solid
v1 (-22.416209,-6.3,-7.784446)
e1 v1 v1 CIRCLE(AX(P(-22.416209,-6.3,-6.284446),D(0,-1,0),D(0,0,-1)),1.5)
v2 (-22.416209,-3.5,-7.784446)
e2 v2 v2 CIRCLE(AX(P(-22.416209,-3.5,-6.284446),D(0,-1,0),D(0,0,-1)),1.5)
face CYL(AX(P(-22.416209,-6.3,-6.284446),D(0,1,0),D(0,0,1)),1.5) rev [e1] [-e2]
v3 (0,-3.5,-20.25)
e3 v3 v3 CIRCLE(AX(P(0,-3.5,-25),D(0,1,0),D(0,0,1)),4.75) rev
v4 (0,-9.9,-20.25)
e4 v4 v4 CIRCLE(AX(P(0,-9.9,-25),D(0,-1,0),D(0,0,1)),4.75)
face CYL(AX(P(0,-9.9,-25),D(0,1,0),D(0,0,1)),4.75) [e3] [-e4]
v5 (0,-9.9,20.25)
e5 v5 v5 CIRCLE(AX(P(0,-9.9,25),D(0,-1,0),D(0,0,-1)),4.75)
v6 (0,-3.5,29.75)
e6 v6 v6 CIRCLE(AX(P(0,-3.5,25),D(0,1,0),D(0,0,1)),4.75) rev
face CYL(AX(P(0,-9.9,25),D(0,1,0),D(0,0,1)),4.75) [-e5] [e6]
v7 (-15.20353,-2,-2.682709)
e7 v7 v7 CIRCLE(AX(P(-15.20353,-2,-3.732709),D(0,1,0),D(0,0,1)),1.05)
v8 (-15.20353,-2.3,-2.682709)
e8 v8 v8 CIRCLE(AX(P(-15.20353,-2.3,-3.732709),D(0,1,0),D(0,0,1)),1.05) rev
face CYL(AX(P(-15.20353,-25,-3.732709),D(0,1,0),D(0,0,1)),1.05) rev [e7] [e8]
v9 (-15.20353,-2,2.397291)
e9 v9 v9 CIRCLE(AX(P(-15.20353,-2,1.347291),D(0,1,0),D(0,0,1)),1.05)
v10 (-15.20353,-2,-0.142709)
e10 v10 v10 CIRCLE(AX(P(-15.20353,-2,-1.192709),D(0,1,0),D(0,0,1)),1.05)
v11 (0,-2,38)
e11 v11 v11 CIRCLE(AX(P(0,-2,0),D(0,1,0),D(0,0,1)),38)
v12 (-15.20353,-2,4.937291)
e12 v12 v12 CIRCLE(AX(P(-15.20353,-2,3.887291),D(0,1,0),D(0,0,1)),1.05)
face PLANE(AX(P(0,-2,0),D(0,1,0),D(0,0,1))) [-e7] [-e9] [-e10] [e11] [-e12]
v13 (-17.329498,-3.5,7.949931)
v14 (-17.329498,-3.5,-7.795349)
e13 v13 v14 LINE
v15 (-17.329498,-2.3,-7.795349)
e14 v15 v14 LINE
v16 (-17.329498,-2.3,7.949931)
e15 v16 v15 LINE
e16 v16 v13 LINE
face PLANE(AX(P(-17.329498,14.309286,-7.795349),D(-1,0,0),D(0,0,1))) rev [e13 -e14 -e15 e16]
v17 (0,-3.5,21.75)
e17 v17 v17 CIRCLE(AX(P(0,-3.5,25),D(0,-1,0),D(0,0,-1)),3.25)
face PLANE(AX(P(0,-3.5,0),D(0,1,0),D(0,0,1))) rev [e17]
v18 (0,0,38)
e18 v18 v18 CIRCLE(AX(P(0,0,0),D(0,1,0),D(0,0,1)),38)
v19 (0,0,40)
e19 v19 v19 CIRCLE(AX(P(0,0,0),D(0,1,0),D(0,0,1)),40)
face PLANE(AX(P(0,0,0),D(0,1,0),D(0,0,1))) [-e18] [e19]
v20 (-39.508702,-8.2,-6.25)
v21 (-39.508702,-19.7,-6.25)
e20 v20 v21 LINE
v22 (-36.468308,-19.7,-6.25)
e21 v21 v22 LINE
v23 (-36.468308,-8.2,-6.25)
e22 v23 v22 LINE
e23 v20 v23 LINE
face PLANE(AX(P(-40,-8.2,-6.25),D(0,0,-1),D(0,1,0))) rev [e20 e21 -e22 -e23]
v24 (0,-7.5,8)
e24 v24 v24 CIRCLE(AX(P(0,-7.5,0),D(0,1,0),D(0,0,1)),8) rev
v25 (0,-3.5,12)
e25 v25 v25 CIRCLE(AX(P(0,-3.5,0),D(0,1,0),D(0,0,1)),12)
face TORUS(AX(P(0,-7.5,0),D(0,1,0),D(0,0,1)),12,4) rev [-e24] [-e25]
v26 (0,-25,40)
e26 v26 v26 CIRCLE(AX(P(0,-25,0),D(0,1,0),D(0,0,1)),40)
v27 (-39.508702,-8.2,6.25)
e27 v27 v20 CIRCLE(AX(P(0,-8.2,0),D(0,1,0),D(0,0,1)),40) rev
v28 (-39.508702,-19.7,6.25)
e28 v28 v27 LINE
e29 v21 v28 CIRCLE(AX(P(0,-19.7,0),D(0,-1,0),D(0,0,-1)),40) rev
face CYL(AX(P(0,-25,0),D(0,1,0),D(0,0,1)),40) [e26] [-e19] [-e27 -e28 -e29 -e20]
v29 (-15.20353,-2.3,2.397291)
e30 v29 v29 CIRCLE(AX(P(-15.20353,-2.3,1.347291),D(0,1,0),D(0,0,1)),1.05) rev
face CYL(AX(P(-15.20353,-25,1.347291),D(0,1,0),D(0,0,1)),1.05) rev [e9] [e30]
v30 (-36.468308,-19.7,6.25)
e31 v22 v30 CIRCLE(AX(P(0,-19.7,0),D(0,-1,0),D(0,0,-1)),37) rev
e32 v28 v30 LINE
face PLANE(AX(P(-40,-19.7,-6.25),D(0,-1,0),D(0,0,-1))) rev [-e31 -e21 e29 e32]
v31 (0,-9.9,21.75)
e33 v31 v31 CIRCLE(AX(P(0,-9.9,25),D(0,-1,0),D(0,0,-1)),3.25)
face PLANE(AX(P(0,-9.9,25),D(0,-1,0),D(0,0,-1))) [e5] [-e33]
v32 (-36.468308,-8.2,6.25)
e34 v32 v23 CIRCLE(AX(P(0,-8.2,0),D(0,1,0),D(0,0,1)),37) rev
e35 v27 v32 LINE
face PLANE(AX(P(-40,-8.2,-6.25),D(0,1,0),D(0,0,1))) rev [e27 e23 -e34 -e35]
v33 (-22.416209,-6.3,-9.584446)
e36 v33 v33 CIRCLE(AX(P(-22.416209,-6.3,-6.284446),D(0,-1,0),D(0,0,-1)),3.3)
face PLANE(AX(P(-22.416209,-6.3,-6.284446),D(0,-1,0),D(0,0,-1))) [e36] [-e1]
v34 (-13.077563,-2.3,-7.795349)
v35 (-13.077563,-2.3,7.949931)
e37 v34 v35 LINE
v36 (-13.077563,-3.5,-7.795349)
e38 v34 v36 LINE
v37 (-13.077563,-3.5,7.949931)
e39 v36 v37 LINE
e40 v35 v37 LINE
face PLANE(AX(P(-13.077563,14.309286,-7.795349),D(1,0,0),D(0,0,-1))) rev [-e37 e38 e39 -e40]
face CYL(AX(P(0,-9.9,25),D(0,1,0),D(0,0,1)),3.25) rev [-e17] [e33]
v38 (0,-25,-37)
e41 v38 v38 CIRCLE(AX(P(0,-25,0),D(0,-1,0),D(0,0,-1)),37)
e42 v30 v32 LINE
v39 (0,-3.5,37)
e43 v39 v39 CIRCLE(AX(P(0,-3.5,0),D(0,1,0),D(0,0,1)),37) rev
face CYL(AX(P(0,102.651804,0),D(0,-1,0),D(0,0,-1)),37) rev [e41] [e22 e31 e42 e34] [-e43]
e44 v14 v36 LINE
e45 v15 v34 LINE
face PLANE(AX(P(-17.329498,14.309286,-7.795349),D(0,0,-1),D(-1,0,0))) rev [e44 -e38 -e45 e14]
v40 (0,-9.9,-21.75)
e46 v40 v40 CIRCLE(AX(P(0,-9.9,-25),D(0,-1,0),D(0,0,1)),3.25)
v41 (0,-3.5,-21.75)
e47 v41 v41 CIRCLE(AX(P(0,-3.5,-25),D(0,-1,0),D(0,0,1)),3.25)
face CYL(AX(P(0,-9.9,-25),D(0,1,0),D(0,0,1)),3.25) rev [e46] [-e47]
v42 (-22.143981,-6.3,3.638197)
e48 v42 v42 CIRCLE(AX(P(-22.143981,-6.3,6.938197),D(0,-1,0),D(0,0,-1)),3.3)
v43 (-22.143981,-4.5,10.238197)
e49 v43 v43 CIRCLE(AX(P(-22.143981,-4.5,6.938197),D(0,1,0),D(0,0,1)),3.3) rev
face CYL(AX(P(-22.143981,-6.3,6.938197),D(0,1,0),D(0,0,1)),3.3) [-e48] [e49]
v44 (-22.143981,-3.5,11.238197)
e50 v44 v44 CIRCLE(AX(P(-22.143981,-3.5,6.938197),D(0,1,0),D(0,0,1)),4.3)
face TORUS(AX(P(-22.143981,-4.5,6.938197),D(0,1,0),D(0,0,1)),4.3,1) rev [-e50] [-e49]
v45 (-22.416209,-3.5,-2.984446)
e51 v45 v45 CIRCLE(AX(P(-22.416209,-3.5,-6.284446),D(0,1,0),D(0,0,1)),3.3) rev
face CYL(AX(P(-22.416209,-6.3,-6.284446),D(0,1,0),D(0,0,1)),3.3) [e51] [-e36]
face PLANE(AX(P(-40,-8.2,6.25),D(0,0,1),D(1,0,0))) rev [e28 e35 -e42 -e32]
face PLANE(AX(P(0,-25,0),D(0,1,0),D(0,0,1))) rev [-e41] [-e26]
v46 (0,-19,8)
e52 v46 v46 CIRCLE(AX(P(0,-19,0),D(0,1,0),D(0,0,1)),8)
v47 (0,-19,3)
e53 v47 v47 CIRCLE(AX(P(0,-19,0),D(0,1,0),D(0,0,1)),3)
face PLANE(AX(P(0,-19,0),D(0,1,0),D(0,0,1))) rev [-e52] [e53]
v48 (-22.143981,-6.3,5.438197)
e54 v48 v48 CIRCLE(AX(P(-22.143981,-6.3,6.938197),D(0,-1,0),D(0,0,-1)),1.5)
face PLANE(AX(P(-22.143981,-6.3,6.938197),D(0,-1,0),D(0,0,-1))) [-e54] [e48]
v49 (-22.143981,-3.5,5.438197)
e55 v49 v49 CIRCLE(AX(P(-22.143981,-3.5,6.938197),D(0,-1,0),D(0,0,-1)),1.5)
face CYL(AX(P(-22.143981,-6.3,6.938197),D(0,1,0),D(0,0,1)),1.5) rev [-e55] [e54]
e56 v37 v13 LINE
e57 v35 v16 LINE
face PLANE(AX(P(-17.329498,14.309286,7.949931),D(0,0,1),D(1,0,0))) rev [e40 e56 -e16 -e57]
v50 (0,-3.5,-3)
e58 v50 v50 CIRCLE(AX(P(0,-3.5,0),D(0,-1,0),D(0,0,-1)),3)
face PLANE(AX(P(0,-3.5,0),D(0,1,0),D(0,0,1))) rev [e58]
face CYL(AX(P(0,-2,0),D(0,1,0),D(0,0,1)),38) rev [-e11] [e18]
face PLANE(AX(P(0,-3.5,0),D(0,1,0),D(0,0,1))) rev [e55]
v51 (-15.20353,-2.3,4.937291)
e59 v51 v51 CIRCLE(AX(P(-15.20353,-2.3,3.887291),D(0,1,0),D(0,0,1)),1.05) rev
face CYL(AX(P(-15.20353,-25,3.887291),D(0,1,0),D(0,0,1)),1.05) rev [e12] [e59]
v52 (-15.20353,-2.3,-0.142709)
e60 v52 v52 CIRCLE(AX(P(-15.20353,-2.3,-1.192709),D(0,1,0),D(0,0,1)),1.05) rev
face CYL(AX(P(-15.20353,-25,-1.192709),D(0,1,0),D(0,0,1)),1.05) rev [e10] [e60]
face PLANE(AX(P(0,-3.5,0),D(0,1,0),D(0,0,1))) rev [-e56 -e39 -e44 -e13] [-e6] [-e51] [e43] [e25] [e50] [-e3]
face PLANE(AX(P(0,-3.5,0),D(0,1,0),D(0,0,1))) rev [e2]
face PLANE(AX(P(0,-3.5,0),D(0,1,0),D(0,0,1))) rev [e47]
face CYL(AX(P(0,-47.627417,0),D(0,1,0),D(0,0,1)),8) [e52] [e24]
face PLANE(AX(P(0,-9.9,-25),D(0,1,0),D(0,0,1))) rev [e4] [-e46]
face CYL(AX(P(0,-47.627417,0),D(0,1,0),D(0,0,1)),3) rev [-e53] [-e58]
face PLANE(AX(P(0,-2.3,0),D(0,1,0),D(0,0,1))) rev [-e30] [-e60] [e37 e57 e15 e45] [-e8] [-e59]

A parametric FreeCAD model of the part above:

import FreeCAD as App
import Part
import Sketcher

V = App.Vector
Q = App.Units.Quantity


def edges_at(feature, points):
    """Names of the edges that pass closest to the given points."""
    edges = feature.Shape.Edges
    near = lambda p: min(range(len(edges)), key=lambda i: edges[i].distToShape(Part.Vertex(*p))[0])
    return sorted({f"Edge{near(p) + 1}" for p in points})

doc = App.newDocument("Part")
body = doc.addObject("PartDesign::Body", "Body")

# Sketch on XZ plane
sketch1 = doc.addObject("Sketcher::SketchObject", "Sketch")
body.addObject(sketch1)
sketch1.AttachmentSupport = (doc.XZ_Plane, [""])
sketch1.MapMode = "FlatFace"
sketch1.addGeometry(Part.Circle(V(0, 0, 0), V(0, 0, 1), 40), False)
sketch1.addConstraint(Sketcher.Constraint("Coincident", 0, 3, -1, 1))
sketch1.addConstraint(Sketcher.Constraint("Diameter", 0, Q("80 mm")))
pad1 = doc.addObject("PartDesign::Pad", "Pad")
body.addObject(pad1)
pad1.Profile = sketch1
pad1.Length = 25

# Sketch on XZ plane
sketch2 = doc.addObject("Sketcher::SketchObject", "Sketch001")
body.addObject(sketch2)
sketch2.AttachmentSupport = (doc.XZ_Plane, [""])
sketch2.MapMode = "FlatFace"
sketch2.addGeometry(Part.Circle(V(0, 0, 0), V(0, 0, 1), 38), False)
sketch2.addConstraint(Sketcher.Constraint("Coincident", 0, 3, -1, 1))
sketch2.addConstraint(Sketcher.Constraint("Diameter", 0, Q("76 mm")))
pocket1 = doc.addObject("PartDesign::Pocket", "Pocket")
body.addObject(pocket1)
pocket1.Profile = sketch2
pocket1.Length = 2
pocket1.Reversed = True

# Sketch on XZ plane
sketch3 = doc.addObject("Sketcher::SketchObject", "Sketch002")
body.addObject(sketch3)
sketch3.AttachmentSupport = (doc.XZ_Plane, [""])
sketch3.MapMode = "FlatFace"
sketch3.AttachmentOffset = App.Placement(V(0, 0, 25), App.Rotation())
sketch3.addGeometry(Part.Circle(V(0, 0, 0), V(0, 0, 1), 37), False)
sketch3.addConstraint(Sketcher.Constraint("Coincident", 0, 3, -1, 1))
sketch3.addConstraint(Sketcher.Constraint("Diameter", 0, Q("74 mm")))
pocket2 = doc.addObject("PartDesign::Pocket", "Pocket001")
body.addObject(pocket2)
pocket2.Profile = sketch3
pocket2.Length = 21.5

# Sketch on YZ plane
sketch4 = doc.addObject("Sketcher::SketchObject", "Sketch003")
body.addObject(sketch4)
sketch4.AttachmentSupport = (doc.YZ_Plane, [""])
sketch4.MapMode = "FlatFace"
sketch4.addGeometry(Part.LineSegment(V(-8, 6, 0), V(-20, 6, 0)), False)
sketch4.addGeometry(Part.LineSegment(V(-20, 6, 0), V(-20, -6, 0)), False)
sketch4.addGeometry(Part.LineSegment(V(-20, -6, 0), V(-8, -6, 0)), False)
sketch4.addGeometry(Part.LineSegment(V(-8, -6, 0), V(-8, 6, 0)), False)
sketch4.addConstraint(Sketcher.Constraint("Coincident", 0, 2, 1, 1))
sketch4.addConstraint(Sketcher.Constraint("Coincident", 1, 2, 2, 1))
sketch4.addConstraint(Sketcher.Constraint("Coincident", 2, 2, 3, 1))
sketch4.addConstraint(Sketcher.Constraint("Coincident", 3, 2, 0, 1))
sketch4.addConstraint(Sketcher.Constraint("Horizontal", 0))
sketch4.addConstraint(Sketcher.Constraint("Vertical", 1))
sketch4.addConstraint(Sketcher.Constraint("Horizontal", 2))
sketch4.addConstraint(Sketcher.Constraint("Vertical", 3))
sketch4.addConstraint(Sketcher.Constraint("DistanceX", 0, 2, 0, 1, Q("11.5 mm")))
sketch4.addConstraint(Sketcher.Constraint("DistanceY", 1, 2, 1, 1, Q("12.5 mm")))
sketch4.addConstraint(Sketcher.Constraint("DistanceX", 0, 2, -1, 1, Q("19.7 mm")))
sketch4.addConstraint(Sketcher.Constraint("DistanceY", -1, 1, 0, 2, Q("6.25 mm")))
pocket3 = doc.addObject("PartDesign::Pocket", "Pocket002")
body.addObject(pocket3)
pocket3.Profile = sketch4
pocket3.Type = "ThroughAll"

# Sketch on XZ plane
sketch5 = doc.addObject("Sketcher::SketchObject", "Sketch004")
body.addObject(sketch5)
sketch5.AttachmentSupport = (doc.XZ_Plane, [""])
sketch5.MapMode = "FlatFace"
sketch5.AttachmentOffset = App.Placement(V(0, 0, 2), App.Rotation())
sketch5.addGeometry(Part.Circle(V(-15.2, -3.7, 0), V(0, 0, 1), 1.1), False)
sketch5.addGeometry(Part.Circle(V(-15.2, -1.2, 0), V(0, 0, 1), 1.1), False)
sketch5.addGeometry(Part.Circle(V(-15.2, 1.3, 0), V(0, 0, 1), 1.1), False)
sketch5.addGeometry(Part.Circle(V(-15.2, 3.9, 0), V(0, 0, 1), 1.1), False)
sketch5.addConstraint(Sketcher.Constraint("Equal", 0, 1))
sketch5.addConstraint(Sketcher.Constraint("Equal", 1, 2))
sketch5.addConstraint(Sketcher.Constraint("Equal", 2, 3))
sketch5.addConstraint(Sketcher.Constraint("Vertical", 0, 3, 1, 3))
sketch5.addConstraint(Sketcher.Constraint("Vertical", 1, 3, 2, 3))
sketch5.addConstraint(Sketcher.Constraint("Vertical", 2, 3, 3, 3))
sketch5.addConstraint(Sketcher.Constraint("Diameter", 0, Q("2.1 mm")))
sketch5.addConstraint(Sketcher.Constraint("DistanceY", 0, 3, 1, 3, Q("2.54 mm")))
sketch5.addConstraint(Sketcher.Constraint("DistanceY", 1, 3, 2, 3, Q("2.54 mm")))
sketch5.addConstraint(Sketcher.Constraint("DistanceY", 2, 3, 3, 3, Q("2.54 mm")))
sketch5.addConstraint(Sketcher.Constraint("DistanceX", 0, 3, -1, 1, Q("15.20353 mm")))
sketch5.addConstraint(Sketcher.Constraint("DistanceY", 0, 3, -1, 1, Q("3.732709 mm")))
pocket4 = doc.addObject("PartDesign::Pocket", "Pocket003")
body.addObject(pocket4)
pocket4.Profile = sketch5
pocket4.Type = "ThroughAll"
pocket4.Reversed = True

# Sketch on XZ plane
sketch6 = doc.addObject("Sketcher::SketchObject", "Sketch005")
body.addObject(sketch6)
sketch6.AttachmentSupport = (doc.XZ_Plane, [""])
sketch6.MapMode = "FlatFace"
sketch6.AttachmentOffset = App.Placement(V(0, 0, 3.5), App.Rotation())
sketch6.addGeometry(Part.LineSegment(V(-17.3, 7.9, 0), V(-17.3, -7.8, 0)), False)
sketch6.addGeometry(Part.LineSegment(V(-17.3, -7.8, 0), V(-13.1, -7.8, 0)), False)
sketch6.addGeometry(Part.LineSegment(V(-13.1, -7.8, 0), V(-13.1, 7.9, 0)), False)
sketch6.addGeometry(Part.LineSegment(V(-13.1, 7.9, 0), V(-17.3, 7.9, 0)), False)
sketch6.addConstraint(Sketcher.Constraint("Coincident", 0, 2, 1, 1))
sketch6.addConstraint(Sketcher.Constraint("Coincident", 1, 2, 2, 1))
sketch6.addConstraint(Sketcher.Constraint("Coincident", 2, 2, 3, 1))
sketch6.addConstraint(Sketcher.Constraint("Coincident", 3, 2, 0, 1))
sketch6.addConstraint(Sketcher.Constraint("Vertical", 0))
sketch6.addConstraint(Sketcher.Constraint("Horizontal", 1))
sketch6.addConstraint(Sketcher.Constraint("Vertical", 2))
sketch6.addConstraint(Sketcher.Constraint("Horizontal", 3))
sketch6.addConstraint(Sketcher.Constraint("DistanceY", 0, 2, 0, 1, Q("15.74528 mm")))
sketch6.addConstraint(Sketcher.Constraint("DistanceX", 1, 1, 1, 2, Q("4.251935 mm")))
sketch6.addConstraint(Sketcher.Constraint("DistanceY", 0, 2, -1, 1, Q("7.795349 mm")))
sketch6.addConstraint(Sketcher.Constraint("DistanceX", 0, 2, -1, 1, Q("17.329498 mm")))
pocket5 = doc.addObject("PartDesign::Pocket", "Pocket004")
body.addObject(pocket5)
pocket5.Profile = sketch6
pocket5.Length = 1.2

# Sketch on XZ plane
sketch7 = doc.addObject("Sketcher::SketchObject", "Sketch006")
body.addObject(sketch7)
sketch7.AttachmentSupport = (doc.XZ_Plane, [""])
sketch7.MapMode = "FlatFace"
sketch7.AttachmentOffset = App.Placement(V(0, 0, 3.5), App.Rotation())
sketch7.addGeometry(Part.Circle(V(-22.1, 6.9, 0), V(0, 0, 1), 3.3), False)
sketch7.addGeometry(Part.Circle(V(-22.1, 6.9, 0), V(0, 0, 1), 1.5), False)
sketch7.addGeometry(Part.Circle(V(-22.4, -6.3, 0), V(0, 0, 1), 3.3), False)
sketch7.addGeometry(Part.Circle(V(-22.4, -6.3, 0), V(0, 0, 1), 1.5), False)
sketch7.addConstraint(Sketcher.Constraint("Coincident", 1, 3, 0, 3))
sketch7.addConstraint(Sketcher.Constraint("Coincident", 3, 3, 2, 3))
sketch7.addConstraint(Sketcher.Constraint("Equal", 0, 2))
sketch7.addConstraint(Sketcher.Constraint("Equal", 1, 3))
sketch7.addConstraint(Sketcher.Constraint("Diameter", 1, Q("3 mm")))
sketch7.addConstraint(Sketcher.Constraint("Diameter", 0, Q("6.6 mm")))
sketch7.addConstraint(Sketcher.Constraint("DistanceX", 0, 3, -1, 1, Q("22.143981 mm")))
sketch7.addConstraint(Sketcher.Constraint("DistanceX", 2, 3, -1, 1, Q("22.416209 mm")))
sketch7.addConstraint(Sketcher.Constraint("DistanceY", -1, 1, 0, 3, Q("6.938197 mm")))
sketch7.addConstraint(Sketcher.Constraint("DistanceY", 2, 3, -1, 1, Q("6.284446 mm")))
pad2 = doc.addObject("PartDesign::Pad", "Pad001")
body.addObject(pad2)
pad2.Profile = sketch7
pad2.Length = 2.8
doc.recompute()

fillet = doc.addObject("PartDesign::Fillet", "Fillet")
body.addObject(fillet)
fillet.Base = (pad2, edges_at(pad2, [(-22.144, -3.5, 3.638)]))
fillet.Radius = 1

# Sketch on XZ plane
sketch8 = doc.addObject("Sketcher::SketchObject", "Sketch007")
body.addObject(sketch8)
sketch8.AttachmentSupport = (doc.XZ_Plane, [""])
sketch8.MapMode = "FlatFace"
sketch8.AttachmentOffset = App.Placement(V(0, 0, 3.5), App.Rotation())
sketch8.addGeometry(Part.Circle(V(0, 25, 0), V(0, 0, 1), 4.8), False)
sketch8.addGeometry(Part.Circle(V(0, 25, 0), V(0, 0, 1), 3.2), False)
sketch8.addGeometry(Part.Circle(V(0, -25, 0), V(0, 0, 1), 4.8), False)
sketch8.addGeometry(Part.Circle(V(0, -25, 0), V(0, 0, 1), 3.2), False)
sketch8.addConstraint(Sketcher.Constraint("Coincident", 1, 3, 0, 3))
sketch8.addConstraint(Sketcher.Constraint("Coincident", 3, 3, 2, 3))
sketch8.addConstraint(Sketcher.Constraint("Equal", 0, 2))
sketch8.addConstraint(Sketcher.Constraint("Equal", 1, 3))
sketch8.addConstraint(Sketcher.Constraint("Symmetric", 0, 3, 2, 3, -1, 1))
sketch8.addConstraint(Sketcher.Constraint("PointOnObject", 0, 3, -2))
sketch8.addConstraint(Sketcher.Constraint("Diameter", 0, Q("9.5 mm")))
sketch8.addConstraint(Sketcher.Constraint("Diameter", 1, Q("6.5 mm")))
sketch8.addConstraint(Sketcher.Constraint("DistanceY", -1, 1, 0, 3, Q("25 mm")))
pad3 = doc.addObject("PartDesign::Pad", "Pad002")
body.addObject(pad3)
pad3.Profile = sketch8
pad3.Length = 6.4

# Sketch on XZ plane
sketch9 = doc.addObject("Sketcher::SketchObject", "Sketch008")
body.addObject(sketch9)
sketch9.AttachmentSupport = (doc.XZ_Plane, [""])
sketch9.MapMode = "FlatFace"
sketch9.AttachmentOffset = App.Placement(V(0, 0, 3.5), App.Rotation())
sketch9.addGeometry(Part.Circle(V(0, 0, 0), V(0, 0, 1), 8), False)
sketch9.addGeometry(Part.Circle(V(0, 0, 0), V(0, 0, 1), 3), False)
sketch9.addConstraint(Sketcher.Constraint("Coincident", 0, 3, -1, 1))
sketch9.addConstraint(Sketcher.Constraint("Coincident", 1, 3, -1, 1))
sketch9.addConstraint(Sketcher.Constraint("Diameter", 0, Q("16 mm")))
sketch9.addConstraint(Sketcher.Constraint("Diameter", 1, Q("6 mm")))
pad4 = doc.addObject("PartDesign::Pad", "Pad003")
body.addObject(pad4)
pad4.Profile = sketch9
pad4.Length = 15.5
doc.recompute()

fillet2 = doc.addObject("PartDesign::Fillet", "Fillet001")
body.addObject(fillet2)
fillet2.Base = (pad4, edges_at(pad4, [(0, -3.5, -8)]))
fillet2.Radius = 4

doc.recompute()
